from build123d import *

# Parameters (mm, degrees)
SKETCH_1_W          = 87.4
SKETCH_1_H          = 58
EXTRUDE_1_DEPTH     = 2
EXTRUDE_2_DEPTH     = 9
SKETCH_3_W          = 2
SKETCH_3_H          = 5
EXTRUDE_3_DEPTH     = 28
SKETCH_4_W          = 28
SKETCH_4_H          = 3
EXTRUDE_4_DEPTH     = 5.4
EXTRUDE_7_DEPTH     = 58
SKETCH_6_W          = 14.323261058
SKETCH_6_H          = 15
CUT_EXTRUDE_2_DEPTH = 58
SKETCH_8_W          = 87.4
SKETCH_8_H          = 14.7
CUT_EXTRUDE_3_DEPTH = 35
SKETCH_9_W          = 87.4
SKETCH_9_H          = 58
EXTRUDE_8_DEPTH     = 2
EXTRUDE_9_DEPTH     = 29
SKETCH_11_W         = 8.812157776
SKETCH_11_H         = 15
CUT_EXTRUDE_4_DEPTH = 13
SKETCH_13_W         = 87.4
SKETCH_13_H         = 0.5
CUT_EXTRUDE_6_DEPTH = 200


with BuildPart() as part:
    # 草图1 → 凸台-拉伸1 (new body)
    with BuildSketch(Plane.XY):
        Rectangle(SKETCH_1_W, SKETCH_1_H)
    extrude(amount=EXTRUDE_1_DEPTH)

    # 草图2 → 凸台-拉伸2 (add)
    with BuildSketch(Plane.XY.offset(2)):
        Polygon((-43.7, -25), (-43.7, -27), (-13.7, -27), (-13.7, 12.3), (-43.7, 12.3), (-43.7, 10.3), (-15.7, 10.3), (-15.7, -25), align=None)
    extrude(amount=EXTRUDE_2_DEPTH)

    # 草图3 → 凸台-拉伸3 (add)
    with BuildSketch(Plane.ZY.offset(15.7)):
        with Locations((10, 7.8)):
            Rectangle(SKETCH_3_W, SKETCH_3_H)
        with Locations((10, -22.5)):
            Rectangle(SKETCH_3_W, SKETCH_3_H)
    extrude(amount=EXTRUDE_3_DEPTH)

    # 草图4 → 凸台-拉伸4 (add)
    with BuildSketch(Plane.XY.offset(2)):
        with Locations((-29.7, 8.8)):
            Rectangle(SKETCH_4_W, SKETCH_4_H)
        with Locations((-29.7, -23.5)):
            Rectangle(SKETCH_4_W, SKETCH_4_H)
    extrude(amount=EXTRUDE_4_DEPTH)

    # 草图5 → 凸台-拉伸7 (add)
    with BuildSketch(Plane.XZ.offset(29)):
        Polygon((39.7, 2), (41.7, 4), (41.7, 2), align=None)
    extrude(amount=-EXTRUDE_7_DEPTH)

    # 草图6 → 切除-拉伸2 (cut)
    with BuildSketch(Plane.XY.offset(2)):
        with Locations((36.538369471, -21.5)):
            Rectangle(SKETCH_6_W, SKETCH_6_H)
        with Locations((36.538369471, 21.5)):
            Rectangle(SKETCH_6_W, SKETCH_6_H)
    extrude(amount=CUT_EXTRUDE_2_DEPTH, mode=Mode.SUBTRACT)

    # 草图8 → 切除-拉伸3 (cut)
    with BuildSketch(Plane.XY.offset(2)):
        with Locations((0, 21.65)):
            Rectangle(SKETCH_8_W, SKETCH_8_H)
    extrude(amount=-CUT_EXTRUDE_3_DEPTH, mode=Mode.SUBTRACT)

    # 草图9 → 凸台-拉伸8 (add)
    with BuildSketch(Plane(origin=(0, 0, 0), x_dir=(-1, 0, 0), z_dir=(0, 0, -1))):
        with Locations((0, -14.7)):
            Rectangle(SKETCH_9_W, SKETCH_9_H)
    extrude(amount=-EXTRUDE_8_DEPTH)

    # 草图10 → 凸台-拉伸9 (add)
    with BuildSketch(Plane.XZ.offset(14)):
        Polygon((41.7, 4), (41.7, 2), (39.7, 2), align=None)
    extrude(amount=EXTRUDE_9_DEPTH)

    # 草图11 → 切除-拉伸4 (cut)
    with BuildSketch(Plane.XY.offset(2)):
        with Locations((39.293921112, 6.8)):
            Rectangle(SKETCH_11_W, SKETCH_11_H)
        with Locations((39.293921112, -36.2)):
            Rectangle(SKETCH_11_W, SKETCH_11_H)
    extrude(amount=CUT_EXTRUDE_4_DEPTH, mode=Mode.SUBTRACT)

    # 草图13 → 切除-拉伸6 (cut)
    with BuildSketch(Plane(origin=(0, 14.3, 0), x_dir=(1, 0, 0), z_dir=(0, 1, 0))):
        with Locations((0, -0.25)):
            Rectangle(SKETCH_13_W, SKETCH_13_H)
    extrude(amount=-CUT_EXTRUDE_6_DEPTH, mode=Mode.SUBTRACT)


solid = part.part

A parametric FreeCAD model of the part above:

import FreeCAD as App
import Part
import Sketcher

doc = App.newDocument("Part")
body = doc.addObject("PartDesign::Body", "Body")

sketch1 = doc.addObject("Sketcher::SketchObject", "Sketch")
body.addObject(sketch1)
sketch1.AttachmentSupport = (doc.XY_Plane, [""])
sketch1.MapMode = "FlatFace"
sketch1.addGeometry(Part.LineSegment(App.Vector(-44, 29, 0), App.Vector(-44, -29, 0)), False)
sketch1.addGeometry(Part.LineSegment(App.Vector(-44, -29, 0), App.Vector(44, -29, 0)), False)
sketch1.addGeometry(Part.LineSegment(App.Vector(44, -29, 0), App.Vector(44, 29, 0)), False)
sketch1.addGeometry(Part.LineSegment(App.Vector(44, 29, 0), App.Vector(-44, 29, 0)), False)
sketch1.addConstraint(Sketcher.Constraint("Coincident", 0, 2, 1, 1))
sketch1.addConstraint(Sketcher.Constraint("Coincident", 1, 2, 2, 1))
sketch1.addConstraint(Sketcher.Constraint("Coincident", 2, 2, 3, 1))
sketch1.addConstraint(Sketcher.Constraint("Coincident", 3, 2, 0, 1))
sketch1.addConstraint(Sketcher.Constraint("Vertical", 0))
sketch1.addConstraint(Sketcher.Constraint("Horizontal", 1))
sketch1.addConstraint(Sketcher.Constraint("Vertical", 2))
sketch1.addConstraint(Sketcher.Constraint("Horizontal", 3))
sketch1.addConstraint(Sketcher.Constraint("Symmetric", 0, 2, 2, 2, -1, 1))
sketch1.addConstraint(Sketcher.Constraint("DistanceY", 0, 2, 0, 1, 58.0))
sketch1.addConstraint(Sketcher.Constraint("DistanceX", 1, 1, 1, 2, 87.4))
pad1 = doc.addObject("PartDesign::Pad", "Pad")
body.addObject(pad1)
pad1.Profile = sketch1
pad1.Length = 2

sketch2 = doc.addObject("Sketcher::SketchObject", "Sketch001")
body.addObject(sketch2)
sketch2.AttachmentSupport = (doc.XY_Plane, [""])
sketch2.MapMode = "FlatFace"
sketch2.AttachmentOffset = App.Placement(App.Vector(0, 0, 2), App.Rotation())
sketch2.addGeometry(Part.LineSegment(App.Vector(-43.7, -25, 0), App.Vector(-43.7, -27, 0)), False)
sketch2.addGeometry(Part.LineSegment(App.Vector(-43.7, -27, 0), App.Vector(-13.7, -27, 0)), False)
sketch2.addGeometry(Part.LineSegment(App.Vector(-13.7, -27, 0), App.Vector(-13.7, 12.3, 0)), False)
sketch2.addGeometry(Part.LineSegment(App.Vector(-13.7, 12.3, 0), App.Vector(-43.7, 12.3, 0)), False)
sketch2.addGeometry(Part.LineSegment(App.Vector(-43.7, 12.3, 0), App.Vector(-43.7, 10.3, 0)), False)
sketch2.addGeometry(Part.LineSegment(App.Vector(-43.7, 10.3, 0), App.Vector(-15.7, 10.3, 0)), False)
sketch2.addGeometry(Part.LineSegment(App.Vector(-15.7, 10.3, 0), App.Vector(-15.7, -25, 0)), False)
sketch2.addGeometry(Part.LineSegment(App.Vector(-15.7, -25, 0), App.Vector(-43.7, -25, 0)), False)
sketch2.addConstraint(Sketcher.Constraint("Coincident", 0, 2, 1, 1))
sketch2.addConstraint(Sketcher.Constraint("Coincident", 1, 2, 2, 1))
sketch2.addConstraint(Sketcher.Constraint("Coincident", 2, 2, 3, 1))
sketch2.addConstraint(Sketcher.Constraint("Coincident", 3, 2, 4, 1))
sketch2.addConstraint(Sketcher.Constraint("Coincident", 4, 2, 5, 1))
sketch2.addConstraint(Sketcher.Constraint("Coincident", 5, 2, 6, 1))
sketch2.addConstraint(Sketcher.Constraint("Coincident", 6, 2, 7, 1))
sketch2.addConstraint(Sketcher.Constraint("Coincident", 7, 2, 0, 1))
sketch2.addConstraint(Sketcher.Constraint("Vertical", 0))
sketch2.addConstraint(Sketcher.Constraint("Horizontal", 1))
sketch2.addConstraint(Sketcher.Constraint("Vertical", 2))
sketch2.addConstraint(Sketcher.Constraint("Horizontal", 3))
sketch2.addConstraint(Sketcher.Constraint("Vertical", 4))
sketch2.addConstraint(Sketcher.Constraint("Horizontal", 5))
sketch2.addConstraint(Sketcher.Constraint("Vertical", 6))
sketch2.addConstraint(Sketcher.Constraint("Horizontal", 7))
sketch2.addConstraint(Sketcher.Constraint("Vertical", 0, 2, 3, 2))
sketch2.addConstraint(Sketcher.Constraint("Equal", 0, 4))
sketch2.addConstraint(Sketcher.Constraint("DistanceX", 1, 1, 1, 2, 30.0))
sketch2.addConstraint(Sketcher.Constraint("DistanceX", 5, 1, 5, 2, 28.0))
sketch2.addConstraint(Sketcher.Constraint("DistanceY", 0, 2, 0, 1, 2.0))
sketch2.addConstraint(Sketcher.Constraint("DistanceY", 2, 1, 2, 2, 39.3))
sketch2.addConstraint(Sketcher.Constraint("DistanceY", 0, 2, -1, 1, 27.0))
sketch2.addConstraint(Sketcher.Constraint("DistanceX", 0, 2, -1, 1, 43.7))
pad2 = doc.addObject("PartDesign::Pad", "Pad001")
body.addObject(pad2)
pad2.Profile = sketch2
pad2.Length = 9

sketch3 = doc.addObject("Sketcher::SketchObject", "Sketch002")
body.addObject(sketch3)
sketch3.AttachmentSupport = (doc.YZ_Plane, [""])
sketch3.MapMode = "FlatFace"
sketch3.AttachmentOffset = App.Placement(App.Vector(0, 0, -15.7), App.Rotation())
sketch3.addGeometry(Part.LineSegment(App.Vector(10.3, 9, 0), App.Vector(5.3, 9, 0)), False)
sketch3.addGeometry(Part.LineSegment(App.Vector(5.3, 9, 0), App.Vector(5.3, 11, 0)), False)
sketch3.addGeometry(Part.LineSegment(App.Vector(5.3, 11, 0), App.Vector(10.3, 11, 0)), False)
sketch3.addGeometry(Part.LineSegment(App.Vector(10.3, 11, 0), App.Vector(10.3, 9, 0)), False)
sketch3.addGeometry(Part.LineSegment(App.Vector(-20, 9, 0), App.Vector(-25, 9, 0)), False)
sketch3.addGeometry(Part.LineSegment(App.Vector(-25, 9, 0), App.Vector(-25, 11, 0)), False)
sketch3.addGeometry(Part.LineSegment(App.Vector(-25, 11, 0), App.Vector(-20, 11, 0)), False)
sketch3.addGeometry(Part.LineSegment(App.Vector(-20, 11, 0), App.Vector(-20, 9, 0)), False)
sketch3.addConstraint(Sketcher.Constraint("Coincident", 0, 2, 1, 1))
sketch3.addConstraint(Sketcher.Constraint("Coincident", 1, 2, 2, 1))
sketch3.addConstraint(Sketcher.Constraint("Coincident", 2, 2, 3, 1))
sketch3.addConstraint(Sketcher.Constraint("Coincident", 3, 2, 0, 1))
sketch3.addConstraint(Sketcher.Constraint("Coincident", 4, 2, 5, 1))
sketch3.addConstraint(Sketcher.Constraint("Coincident", 5, 2, 6, 1))
sketch3.addConstraint(Sketcher.Constraint("Coincident", 6, 2, 7, 1))
sketch3.addConstraint(Sketcher.Constraint("Coincident", 7, 2, 4, 1))
sketch3.addConstraint(Sketcher.Constraint("Horizontal", 0))
sketch3.addConstraint(Sketcher.Constraint("Vertical", 1))
sketch3.addConstraint(Sketcher.Constraint("Horizontal", 2))
sketch3.addConstraint(Sketcher.Constraint("Vertical", 3))
sketch3.addConstraint(Sketcher.Constraint("Horizontal", 4))
sketch3.addConstraint(Sketcher.Constraint("Vertical", 5))
sketch3.addConstraint(Sketcher.Constraint("Horizontal", 6))
sketch3.addConstraint(Sketcher.Constraint("Vertical", 7))
sketch3.addConstraint(Sketcher.Constraint("Horizontal", 3, 2, 4, 2))
sketch3.addConstraint(Sketcher.Constraint("Horizontal", 2, 2, 5, 2))
sketch3.addConstraint(Sketcher.Constraint("Equal", 2, 4))
sketch3.addConstraint(Sketcher.Constraint("DistanceX", 0, 2, 0, 1, 5.0))
sketch3.addConstraint(Sketcher.Constraint("DistanceY", 1, 1, 1, 2, 2.0))
sketch3.addConstraint(Sketcher.Constraint("DistanceY", -1, 1, 0, 2, 9.0))
sketch3.addConstraint(Sketcher.Constraint("DistanceX", 4, 2, -1, 1, 25.0))
sketch3.addConstraint(Sketcher.Constraint("DistanceX", -1, 1, 0, 2, 5.3))
pad3 = doc.addObject("PartDesign::Pad", "Pad002")
body.addObject(pad3)
pad3.Profile = sketch3
pad3.Length = 28
pad3.Reversed = True

sketch4 = doc.addObject("Sketcher::SketchObject", "Sketch003")
body.addObject(sketch4)
sketch4.AttachmentSupport = (doc.XY_Plane, [""])
sketch4.MapMode = "FlatFace"
sketch4.AttachmentOffset = App.Placement(App.Vector(0, 0, 2), App.Rotation())
sketch4.addGeometry(Part.LineSegment(App.Vector(-43.7, 10.3, 0), App.Vector(-43.7, 7.3, 0)), False)
sketch4.addGeometry(Part.LineSegment(App.Vector(-43.7, 7.3, 0), App.Vector(-15.7, 7.3, 0)), False)
sketch4.addGeometry(Part.LineSegment(App.Vector(-15.7, 7.3, 0), App.Vector(-15.7, 10.3, 0)), False)
sketch4.addGeometry(Part.LineSegment(App.Vector(-15.7, 10.3, 0), App.Vector(-43.7, 10.3, 0)), False)
sketch4.addGeometry(Part.LineSegment(App.Vector(-43.7, -22, 0), App.Vector(-43.7, -25, 0)), False)
sketch4.addGeometry(Part.LineSegment(App.Vector(-43.7, -25, 0), App.Vector(-15.7, -25, 0)), False)
sketch4.addGeometry(Part.LineSegment(App.Vector(-15.7, -25, 0), App.Vector(-15.7, -22, 0)), False)
sketch4.addGeometry(Part.LineSegment(App.Vector(-15.7, -22, 0), App.Vector(-43.7, -22, 0)), False)
sketch4.addConstraint(Sketcher.Constraint("Coincident", 0, 2, 1, 1))
sketch4.addConstraint(Sketcher.Constraint("Coincident", 1, 2, 2, 1))
sketch4.addConstraint(Sketcher.Constraint("Coincident", 2, 2, 3, 1))
sketch4.addConstraint(Sketcher.Constraint("Coincident", 3, 2, 0, 1))
sketch4.addConstraint(Sketcher.Constraint("Coincident", 4, 2, 5, 1))
sketch4.addConstraint(Sketcher.Constraint("Coincident", 5, 2, 6, 1))
sketch4.addConstraint(Sketcher.Constraint("Coincident", 6, 2, 7, 1))
sketch4.addConstraint(Sketcher.Constraint("Coincident", 7, 2, 4, 1))
sketch4.addConstraint(Sketcher.Constraint("Vertical", 0))
sketch4.addConstraint(Sketcher.Constraint("Horizontal", 1))
sketch4.addConstraint(Sketcher.Constraint("Vertical", 2))
sketch4.addConstraint(Sketcher.Constraint("Horizontal", 3))
sketch4.addConstraint(Sketcher.Constraint("Vertical", 4))
sketch4.addConstraint(Sketcher.Constraint("Horizontal", 5))
sketch4.addConstraint(Sketcher.Constraint("Vertical", 6))
sketch4.addConstraint(Sketcher.Constraint("Horizontal", 7))
sketch4.addConstraint(Sketcher.Constraint("Vertical", 3, 2, 4, 2))
sketch4.addConstraint(Sketcher.Constraint("Vertical", 2, 2, 5, 2))
sketch4.addConstraint(Sketcher.Constraint("Equal", 2, 4))
sketch4.addConstraint(Sketcher.Constraint("DistanceX", 1, 1, 1, 2, 28.0))
sketch4.addConstraint(Sketcher.Constraint("DistanceY", 0, 2, 0, 1, 3.0))
sketch4.addConstraint(Sketcher.Constraint("DistanceY", 4, 2, -1, 1, 25.0))
sketch4.addConstraint(Sketcher.Constraint("DistanceX", 0, 2, -1, 1, 43.7))
sketch4.addConstraint(Sketcher.Constraint("DistanceY", -1, 1, 0, 2, 7.3))
pad4 = doc.addObject("PartDesign::Pad", "Pad003")
body.addObject(pad4)
pad4.Profile = sketch4
pad4.Length = 5.4

sketch5 = doc.addObject("Sketcher::SketchObject", "Sketch004")
body.addObject(sketch5)
sketch5.AttachmentSupport = (doc.XZ_Plane, [""])
sketch5.MapMode = "FlatFace"
sketch5.AttachmentOffset = App.Placement(App.Vector(0, 0, 29), App.Rotation())
sketch5.addGeometry(Part.LineSegment(App.Vector(41.7, 4, 0), App.Vector(39.7, 2, 0)), False)
sketch5.addGeometry(Part.LineSegment(App.Vector(39.7, 2, 0), App.Vector(41.7, 2, 0)), False)
sketch5.addGeometry(Part.LineSegment(App.Vector(41.7, 2, 0), App.Vector(41.7, 4, 0)), False)
sketch5.addConstraint(Sketcher.Constraint("Coincident", 0, 2, 1, 1))
sketch5.addConstraint(Sketcher.Constraint("Coincident", 1, 2, 2, 1))
sketch5.addConstraint(Sketcher.Constraint("Coincident", 2, 2, 0, 1))
sketch5.addConstraint(Sketcher.Constraint("Horizontal", 1))
sketch5.addConstraint(Sketcher.Constraint("Vertical", 2))
sketch5.addConstraint(Sketcher.Constraint("Equal", 1, 2))
sketch5.addConstraint(Sketcher.Constraint("DistanceX", 1, 1, 1, 2, 2.0))
sketch5.addConstraint(Sketcher.Constraint("DistanceY", -1, 1, 0, 2, 2.0))
sketch5.addConstraint(Sketcher.Constraint("DistanceX", -1, 1, 0, 2, 39.7))
pad5 = doc.addObject("PartDesign::Pad", "Pad004")
body.addObject(pad5)
pad5.Profile = sketch5
pad5.Length = 58
pad5.Reversed = True

sketch6 = doc.addObject("Sketcher::SketchObject", "Sketch005")
body.addObject(sketch6)
sketch6.AttachmentSupport = (doc.XY_Plane, [""])
sketch6.MapMode = "FlatFace"
sketch6.AttachmentOffset = App.Placement(App.Vector(0, 0, 2), App.Rotation())
sketch6.addGeometry(Part.LineSegment(App.Vector(29, -14, 0), App.Vector(29, -29, 0)), False)
sketch6.addGeometry(Part.LineSegment(App.Vector(29, -29, 0), App.Vector(44, -29, 0)), False)
sketch6.addGeometry(Part.LineSegment(App.Vector(44, -29, 0), App.Vector(44, -14, 0)), False)
sketch6.addGeometry(Part.LineSegment(App.Vector(44, -14, 0), App.Vector(29, -14, 0)), False)
sketch6.addGeometry(Part.LineSegment(App.Vector(29, 29, 0), App.Vector(29, 14, 0)), False)
sketch6.addGeometry(Part.LineSegment(App.Vector(29, 14, 0), App.Vector(44, 14, 0)), False)
sketch6.addGeometry(Part.LineSegment(App.Vector(44, 14, 0), App.Vector(44, 29, 0)), False)
sketch6.addGeometry(Part.LineSegment(App.Vector(44, 29, 0), App.Vector(29, 29, 0)), False)
sketch6.addConstraint(Sketcher.Constraint("Coincident", 0, 2, 1, 1))
sketch6.addConstraint(Sketcher.Constraint("Coincident", 1, 2, 2, 1))
sketch6.addConstraint(Sketcher.Constraint("Coincident", 2, 2, 3, 1))
sketch6.addConstraint(Sketcher.Constraint("Coincident", 3, 2, 0, 1))
sketch6.addConstraint(Sketcher.Constraint("Coincident", 4, 2, 5, 1))
sketch6.addConstraint(Sketcher.Constraint("Coincident", 5, 2, 6, 1))
sketch6.addConstraint(Sketcher.Constraint("Coincident", 6, 2, 7, 1))
sketch6.addConstraint(Sketcher.Constraint("Coincident", 7, 2, 4, 1))
sketch6.addConstraint(Sketcher.Constraint("Vertical", 0))
sketch6.addConstraint(Sketcher.Constraint("Horizontal", 1))
sketch6.addConstraint(Sketcher.Constraint("Vertical", 2))
sketch6.addConstraint(Sketcher.Constraint("Horizontal", 3))
sketch6.addConstraint(Sketcher.Constraint("Vertical", 4))
sketch6.addConstraint(Sketcher.Constraint("Horizontal", 5))
sketch6.addConstraint(Sketcher.Constraint("Vertical", 6))
sketch6.addConstraint(Sketcher.Constraint("Horizontal", 7))
sketch6.addConstraint(Sketcher.Constraint("Symmetric", 3, 2, 4, 2, -1))
sketch6.addConstraint(Sketcher.Constraint("Symmetric", 1, 2, 6, 2, -1))
sketch6.addConstraint(Sketcher.Constraint("DistanceY", 0, 2, 0, 1, 15.0))
sketch6.addConstraint(Sketcher.Constraint("DistanceY", 0, 2, -1, 1, 29.0))
sketch6.addConstraint(Sketcher.Constraint("DistanceX", -1, 1, 1, 2, 43.7))
sketch6.addConstraint(Sketcher.Constraint("DistanceX", 1, 1, 1, 2, 14.323261))
pocket1 = doc.addObject("PartDesign::Pocket", "Pocket")
body.addObject(pocket1)
pocket1.Profile = sketch6
pocket1.Length = 58
pocket1.Reversed = True

sketch7 = doc.addObject("Sketcher::SketchObject", "Sketch006")
body.addObject(sketch7)
sketch7.AttachmentSupport = (doc.XY_Plane, [""])
sketch7.MapMode = "FlatFace"
sketch7.AttachmentOffset = App.Placement(App.Vector(0, 0, 2), App.Rotation())
sketch7.addGeometry(Part.LineSegment(App.Vector(-44, 29, 0), App.Vector(-44, 14, 0)), False)
sketch7.addGeometry(Part.LineSegment(App.Vector(-44, 14, 0), App.Vector(44, 14, 0)), False)
sketch7.addGeometry(Part.LineSegment(App.Vector(44, 14, 0), App.Vector(44, 29, 0)), False)
sketch7.addGeometry(Part.LineSegment(App.Vector(44, 29, 0), App.Vector(-44, 29, 0)), False)
sketch7.addConstraint(Sketcher.Constraint("Coincident", 0, 2, 1, 1))
sketch7.addConstraint(Sketcher.Constraint("Coincident", 1, 2, 2, 1))
sketch7.addConstraint(Sketcher.Constraint("Coincident", 2, 2, 3, 1))
sketch7.addConstraint(Sketcher.Constraint("Coincident", 3, 2, 0, 1))
sketch7.addConstraint(Sketcher.Constraint("Vertical", 0))
sketch7.addConstraint(Sketcher.Constraint("Horizontal", 1))
sketch7.addConstraint(Sketcher.Constraint("Vertical", 2))
sketch7.addConstraint(Sketcher.Constraint("Horizontal", 3))
sketch7.addConstraint(Sketcher.Constraint("DistanceX", 1, 1, 1, 2, 87.4))
sketch7.addConstraint(Sketcher.Constraint("DistanceY", 0, 2, 0, 1, 14.7))
sketch7.addConstraint(Sketcher.Constraint("DistanceY", -1, 1, 2, 2, 29.0))
sketch7.addConstraint(Sketcher.Constraint("DistanceX", 0, 2, -1, 1, 43.7))
pocket2 = doc.addObject("PartDesign::Pocket", "Pocket001")
body.addObject(pocket2)
pocket2.Profile = sketch7
pocket2.Length = 35

sketch8 = doc.addObject("Sketcher::SketchObject", "Sketch007")
body.addObject(sketch8)
sketch8.AttachmentSupport = (doc.XY_Plane, [""])
sketch8.MapMode = "FlatFace"
sketch8.addGeometry(Part.LineSegment(App.Vector(44, 14, 0), App.Vector(44, -44, 0)), False)
sketch8.addGeometry(Part.LineSegment(App.Vector(44, -44, 0), App.Vector(-44, -44, 0)), False)
sketch8.addGeometry(Part.LineSegment(App.Vector(-44, -44, 0), App.Vector(-44, 14, 0)), False)
sketch8.addGeometry(Part.LineSegment(App.Vector(-44, 14, 0), App.Vector(44, 14, 0)), False)
sketch8.addConstraint(Sketcher.Constraint("Coincident", 0, 2, 1, 1))
sketch8.addConstraint(Sketcher.Constraint("Coincident", 1, 2, 2, 1))
sketch8.addConstraint(Sketcher.Constraint("Coincident", 2, 2, 3, 1))
sketch8.addConstraint(Sketcher.Constraint("Coincident", 3, 2, 0, 1))
sketch8.addConstraint(Sketcher.Constraint("Vertical", 0))
sketch8.addConstraint(Sketcher.Constraint("Horizontal", 1))
sketch8.addConstraint(Sketcher.Constraint("Vertical", 2))
sketch8.addConstraint(Sketcher.Constraint("Horizontal", 3))
sketch8.addConstraint(Sketcher.Constraint("DistanceY", 0, 2, 0, 1, 58.0))
sketch8.addConstraint(Sketcher.Constraint("DistanceX", 1, 2, 1, 1, 87.4))
sketch8.addConstraint(Sketcher.Constraint("DistanceX", -1, 1, 0, 2, 43.7))
sketch8.addConstraint(Sketcher.Constraint("DistanceY", 0, 2, -1, 1, 43.7))
pad6 = doc.addObject("PartDesign::Pad", "Pad005")
body.addObject(pad6)
pad6.Profile = sketch8
pad6.Length = 2

sketch9 = doc.addObject("Sketcher::SketchObject", "Sketch008")
body.addObject(sketch9)
sketch9.AttachmentSupport = (doc.XZ_Plane, [""])
sketch9.MapMode = "FlatFace"
sketch9.AttachmentOffset = App.Placement(App.Vector(0, 0, 14), App.Rotation())
sketch9.addGeometry(Part.LineSegment(App.Vector(41.7, 2, 0), App.Vector(41.7, 4, 0)), False)
sketch9.addGeometry(Part.LineSegment(App.Vector(41.7, 4, 0), App.Vector(39.7, 2, 0)), False)
sketch9.addGeometry(Part.LineSegment(App.Vector(39.7, 2, 0), App.Vector(41.7, 2, 0)), False)
sketch9.addConstraint(Sketcher.Constraint("Coincident", 0, 2, 1, 1))
sketch9.addConstraint(Sketcher.Constraint("Coincident", 1, 2, 2, 1))
sketch9.addConstraint(Sketcher.Constraint("Coincident", 2, 2, 0, 1))
sketch9.addConstraint(Sketcher.Constraint("Vertical", 0))
sketch9.addConstraint(Sketcher.Constraint("Horizontal", 2))
sketch9.addConstraint(Sketcher.Constraint("Equal", 2, 0))
sketch9.addConstraint(Sketcher.Constraint("DistanceX", 2, 1, 2, 2, 2.0))
sketch9.addConstraint(Sketcher.Constraint("DistanceY", -1, 1, 0, 2, 4.0))
sketch9.addConstraint(Sketcher.Constraint("DistanceX", -1, 1, 0, 2, 41.7))
pad7 = doc.addObject("PartDesign::Pad", "Pad006")
body.addObject(pad7)
pad7.Profile = sketch9
pad7.Length = 29

sketch10 = doc.addObject("Sketcher::SketchObject", "Sketch009")
body.addObject(sketch10)
sketch10.AttachmentSupport = (doc.XY_Plane, [""])
sketch10.MapMode = "FlatFace"
sketch10.AttachmentOffset = App.Placement(App.Vector(0, 0, 2), App.Rotation())
sketch10.addGeometry(Part.LineSegment(App.Vector(35, 14, 0), App.Vector(35, -1, 0)), False)
sketch10.addGeometry(Part.LineSegment(App.Vector(35, -1, 0), App.Vector(44, -1, 0)), False)
sketch10.addGeometry(Part.LineSegment(App.Vector(44, -1, 0), App.Vector(44, 14, 0)), False)
sketch10.addGeometry(Part.LineSegment(App.Vector(44, 14, 0), App.Vector(35, 14, 0)), False)
sketch10.addGeometry(Part.LineSegment(App.Vector(35, -29, 0), App.Vector(35, -44, 0)), False)
sketch10.addGeometry(Part.LineSegment(App.Vector(35, -44, 0), App.Vector(44, -44, 0)), False)
sketch10.addGeometry(Part.LineSegment(App.Vector(44, -44, 0), App.Vector(44, -29, 0)), False)
sketch10.addGeometry(Part.LineSegment(App.Vector(44, -29, 0), App.Vector(35, -29, 0)), False)
sketch10.addConstraint(Sketcher.Constraint("Coincident", 0, 2, 1, 1))
sketch10.addConstraint(Sketcher.Constraint("Coincident", 1, 2, 2, 1))
sketch10.addConstraint(Sketcher.Constraint("Coincident", 2, 2, 3, 1))
sketch10.addConstraint(Sketcher.Constraint("Coincident", 3, 2, 0, 1))
sketch10.addConstraint(Sketcher.Constraint("Coincident", 4, 2, 5, 1))
sketch10.addConstraint(Sketcher.Constraint("Coincident", 5, 2, 6, 1))
sketch10.addConstraint(Sketcher.Constraint("Coincident", 6, 2, 7, 1))
sketch10.addConstraint(Sketcher.Constraint("Coincident", 7, 2, 4, 1))
sketch10.addConstraint(Sketcher.Constraint("Vertical", 0))
sketch10.addConstraint(Sketcher.Constraint("Horizontal", 1))
sketch10.addConstraint(Sketcher.Constraint("Vertical", 2))
sketch10.addConstraint(Sketcher.Constraint("Horizontal", 3))
sketch10.addConstraint(Sketcher.Constraint("Vertical", 4))
sketch10.addConstraint(Sketcher.Constraint("Horizontal", 5))
sketch10.addConstraint(Sketcher.Constraint("Vertical", 6))
sketch10.addConstraint(Sketcher.Constraint("Horizontal", 7))
sketch10.addConstraint(Sketcher.Constraint("Vertical", 3, 2, 4, 2))
sketch10.addConstraint(Sketcher.Constraint("Vertical", 2, 2, 5, 2))
sketch10.addConstraint(Sketcher.Constraint("Equal", 2, 4))
sketch10.addConstraint(Sketcher.Constraint("DistanceY", 0, 2, 0, 1, 15.0))
sketch10.addConstraint(Sketcher.Constraint("DistanceY", 4, 2, 0, 2, 43.0))
sketch10.addConstraint(Sketcher.Constraint("DistanceY", 0, 2, -1, 1, 0.7))
sketch10.addConstraint(Sketcher.Constraint("DistanceX", -1, 1, 1, 2, 43.7))
sketch10.addConstraint(Sketcher.Constraint("DistanceX", 1, 1, 1, 2, 8.812158))
pocket3 = doc.addObject("PartDesign::Pocket", "Pocket002")
body.addObject(pocket3)
pocket3.Profile = sketch10
pocket3.Length = 13
pocket3.Reversed = True

sketch11 = doc.addObject("Sketcher::SketchObject", "Sketch010")
body.addObject(sketch11)
sketch11.AttachmentSupport = (doc.XZ_Plane, [""])
sketch11.MapMode = "FlatFace"
sketch11.AttachmentOffset = App.Placement(App.Vector(0, 0, -14.3), App.Rotation())
sketch11.addGeometry(Part.LineSegment(App.Vector(-43.7, 0, 0), App.Vector(-43.7, 0.5, 0)), False)
sketch11.addGeometry(Part.LineSegment(App.Vector(-43.7, 0.5, 0), App.Vector(43.7, 0.5, 0)), False)
sketch11.addGeometry(Part.LineSegment(App.Vector(43.7, 0.5, 0), App.Vector(43.7, 0, 0)), False)
sketch11.addGeometry(Part.LineSegment(App.Vector(43.7, 0, 0), App.Vector(-43.7, 0, 0)), False)
sketch11.addConstraint(Sketcher.Constraint("Coincident", 0, 2, 1, 1))
sketch11.addConstraint(Sketcher.Constraint("Coincident", 1, 2, 2, 1))
sketch11.addConstraint(Sketcher.Constraint("Coincident", 2, 2, 3, 1))
sketch11.addConstraint(Sketcher.Constraint("Coincident", 3, 2, 0, 1))
sketch11.addConstraint(Sketcher.Constraint("Vertical", 0))
sketch11.addConstraint(Sketcher.Constraint("Horizontal", 1))
sketch11.addConstraint(Sketcher.Constraint("Vertical", 2))
sketch11.addConstraint(Sketcher.Constraint("Horizontal", 3))
sketch11.addConstraint(Sketcher.Constraint("Symmetric", 2, 2, 3, 2, -1, 1))
sketch11.addConstraint(Sketcher.Constraint("DistanceX", 1, 1, 1, 2, 87.4))
sketch11.addConstraint(Sketcher.Constraint("DistanceY", 0, 1, 0, 2, 0.5))
pocket4 = doc.addObject("PartDesign::Pocket", "Pocket003")
body.addObject(pocket4)
pocket4.Profile = sketch11
pocket4.Length = 200
pocket4.Reversed = True

doc.recompute()
